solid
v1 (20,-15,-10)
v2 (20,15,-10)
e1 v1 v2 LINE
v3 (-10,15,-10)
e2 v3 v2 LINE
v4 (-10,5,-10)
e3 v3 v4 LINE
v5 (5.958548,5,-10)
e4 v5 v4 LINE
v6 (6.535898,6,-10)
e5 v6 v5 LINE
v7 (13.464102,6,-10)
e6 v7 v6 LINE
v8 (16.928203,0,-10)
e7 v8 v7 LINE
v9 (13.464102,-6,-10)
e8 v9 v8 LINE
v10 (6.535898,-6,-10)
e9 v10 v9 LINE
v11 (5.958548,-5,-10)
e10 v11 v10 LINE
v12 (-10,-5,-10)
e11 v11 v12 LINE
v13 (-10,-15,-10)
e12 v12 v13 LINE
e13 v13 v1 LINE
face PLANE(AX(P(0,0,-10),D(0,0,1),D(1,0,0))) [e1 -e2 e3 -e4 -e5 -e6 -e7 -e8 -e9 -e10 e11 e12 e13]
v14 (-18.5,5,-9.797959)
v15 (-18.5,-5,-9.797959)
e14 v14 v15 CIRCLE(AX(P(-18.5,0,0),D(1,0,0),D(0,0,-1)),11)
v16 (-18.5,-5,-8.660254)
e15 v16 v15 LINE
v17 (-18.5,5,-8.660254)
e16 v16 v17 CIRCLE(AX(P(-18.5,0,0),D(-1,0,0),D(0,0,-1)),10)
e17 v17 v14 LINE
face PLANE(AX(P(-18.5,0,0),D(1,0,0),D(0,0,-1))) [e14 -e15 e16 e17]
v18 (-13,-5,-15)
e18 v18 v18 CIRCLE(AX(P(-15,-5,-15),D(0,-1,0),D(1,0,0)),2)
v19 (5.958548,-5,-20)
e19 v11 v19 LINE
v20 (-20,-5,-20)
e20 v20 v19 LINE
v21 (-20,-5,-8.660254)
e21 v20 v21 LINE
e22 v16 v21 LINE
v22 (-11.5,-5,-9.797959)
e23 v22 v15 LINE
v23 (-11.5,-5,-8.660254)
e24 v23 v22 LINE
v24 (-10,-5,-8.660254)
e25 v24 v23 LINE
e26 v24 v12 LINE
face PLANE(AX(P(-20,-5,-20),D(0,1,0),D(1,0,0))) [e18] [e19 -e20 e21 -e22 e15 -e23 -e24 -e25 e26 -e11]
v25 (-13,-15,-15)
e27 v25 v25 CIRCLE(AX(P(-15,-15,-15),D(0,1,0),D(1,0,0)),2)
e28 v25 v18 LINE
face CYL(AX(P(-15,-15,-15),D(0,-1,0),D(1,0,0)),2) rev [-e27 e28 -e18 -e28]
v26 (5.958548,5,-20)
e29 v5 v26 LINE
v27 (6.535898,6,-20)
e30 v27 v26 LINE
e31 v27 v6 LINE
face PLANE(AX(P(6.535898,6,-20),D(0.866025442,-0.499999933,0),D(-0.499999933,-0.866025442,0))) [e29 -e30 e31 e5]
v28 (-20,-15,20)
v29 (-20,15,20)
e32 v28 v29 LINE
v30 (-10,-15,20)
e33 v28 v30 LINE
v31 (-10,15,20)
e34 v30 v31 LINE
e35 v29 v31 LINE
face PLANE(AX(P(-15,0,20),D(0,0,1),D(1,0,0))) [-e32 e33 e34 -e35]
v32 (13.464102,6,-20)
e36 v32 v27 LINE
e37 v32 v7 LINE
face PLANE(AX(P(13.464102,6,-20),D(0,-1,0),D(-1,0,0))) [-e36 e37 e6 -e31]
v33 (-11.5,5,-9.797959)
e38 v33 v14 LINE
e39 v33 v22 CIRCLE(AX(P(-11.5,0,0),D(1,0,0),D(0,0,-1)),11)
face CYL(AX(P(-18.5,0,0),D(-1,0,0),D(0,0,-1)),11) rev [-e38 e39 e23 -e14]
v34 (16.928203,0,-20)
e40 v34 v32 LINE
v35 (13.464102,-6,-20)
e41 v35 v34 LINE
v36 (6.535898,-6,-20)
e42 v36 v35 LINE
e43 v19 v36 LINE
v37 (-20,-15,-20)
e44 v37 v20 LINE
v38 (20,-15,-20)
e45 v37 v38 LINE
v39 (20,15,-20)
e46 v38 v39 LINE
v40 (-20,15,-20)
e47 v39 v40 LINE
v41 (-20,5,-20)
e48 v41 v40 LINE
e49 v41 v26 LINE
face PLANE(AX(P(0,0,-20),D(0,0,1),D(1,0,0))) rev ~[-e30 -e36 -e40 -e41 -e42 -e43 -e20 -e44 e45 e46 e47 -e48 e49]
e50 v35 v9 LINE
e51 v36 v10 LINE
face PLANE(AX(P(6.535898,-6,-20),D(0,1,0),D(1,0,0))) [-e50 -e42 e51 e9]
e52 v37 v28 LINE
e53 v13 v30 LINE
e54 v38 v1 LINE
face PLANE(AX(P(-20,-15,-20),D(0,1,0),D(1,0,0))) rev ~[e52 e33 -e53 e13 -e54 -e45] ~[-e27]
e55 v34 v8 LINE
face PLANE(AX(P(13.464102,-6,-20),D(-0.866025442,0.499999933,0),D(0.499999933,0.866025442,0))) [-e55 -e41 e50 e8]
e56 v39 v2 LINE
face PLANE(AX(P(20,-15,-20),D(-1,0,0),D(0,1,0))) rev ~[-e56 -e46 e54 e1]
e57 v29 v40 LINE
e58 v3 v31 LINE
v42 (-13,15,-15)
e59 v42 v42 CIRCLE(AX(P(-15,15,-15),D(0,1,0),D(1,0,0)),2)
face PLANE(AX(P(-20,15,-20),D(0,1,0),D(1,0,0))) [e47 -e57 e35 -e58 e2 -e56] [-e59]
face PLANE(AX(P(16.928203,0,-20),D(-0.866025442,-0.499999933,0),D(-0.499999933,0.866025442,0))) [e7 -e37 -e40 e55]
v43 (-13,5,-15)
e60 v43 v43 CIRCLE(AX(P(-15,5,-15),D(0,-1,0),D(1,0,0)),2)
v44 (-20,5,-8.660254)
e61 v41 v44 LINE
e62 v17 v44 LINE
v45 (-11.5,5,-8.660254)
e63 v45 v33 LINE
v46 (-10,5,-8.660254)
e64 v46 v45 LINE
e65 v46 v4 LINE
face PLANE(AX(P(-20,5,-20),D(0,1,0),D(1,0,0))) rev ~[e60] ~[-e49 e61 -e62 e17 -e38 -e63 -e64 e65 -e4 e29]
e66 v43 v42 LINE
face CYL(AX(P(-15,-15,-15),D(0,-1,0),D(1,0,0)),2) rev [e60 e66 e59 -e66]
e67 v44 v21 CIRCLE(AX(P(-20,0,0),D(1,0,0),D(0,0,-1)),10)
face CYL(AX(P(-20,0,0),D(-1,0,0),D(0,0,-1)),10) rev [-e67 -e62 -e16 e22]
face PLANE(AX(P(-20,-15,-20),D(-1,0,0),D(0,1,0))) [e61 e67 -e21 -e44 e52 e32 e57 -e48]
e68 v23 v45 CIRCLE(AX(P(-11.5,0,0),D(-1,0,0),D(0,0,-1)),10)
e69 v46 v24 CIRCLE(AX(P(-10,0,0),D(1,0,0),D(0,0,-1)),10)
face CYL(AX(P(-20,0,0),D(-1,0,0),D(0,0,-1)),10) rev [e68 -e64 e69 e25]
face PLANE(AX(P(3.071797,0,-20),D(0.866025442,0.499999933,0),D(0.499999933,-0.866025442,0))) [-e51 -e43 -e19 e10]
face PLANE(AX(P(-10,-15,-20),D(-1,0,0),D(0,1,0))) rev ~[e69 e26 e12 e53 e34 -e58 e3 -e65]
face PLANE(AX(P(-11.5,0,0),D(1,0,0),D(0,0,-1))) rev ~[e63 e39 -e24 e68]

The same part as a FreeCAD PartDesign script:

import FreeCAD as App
import Part
import Sketcher
Q = App.Units.Quantity


def add_polygon(sketch, points):
    """Adds a closed chain of lines whose ends are joined by coincident constraints."""
    first, n = sketch.GeometryCount, len(points)
    for a, b in zip(points, points[1:] + points[:1]):
        sketch.addGeometry(Part.LineSegment(App.Vector(*a, 0), App.Vector(*b, 0)), False)
    for i in range(n):
        sketch.addConstraint(Sketcher.Constraint("Coincident", first + i, 2, first + (i + 1) % n, 1))

doc = App.newDocument("Part")
body = doc.addObject("PartDesign::Body", "Body")

sketch1 = body.newObject("Sketcher::SketchObject", "Sketch")
sketch1.AttachmentSupport = (doc.getObject("XY_Plane"), [""])
sketch1.MapMode = "FlatFace"
sketch1.addGeometry(Part.Circle(App.Vector(0, 0, 0), App.Vector(0, 0, 1), 2), False)
sketch1.addConstraint([
    Sketcher.Constraint("Coincident", 0, 3, -1, 1),
    Sketcher.Constraint("Diameter", 0, 4.0),
])
pad1 = body.newObject("PartDesign::Pad", "Pad")
pad1.Profile = sketch1
pad1.Length = 30
body2 = doc.addObject("PartDesign::Body", "Body001")
doc.recompute()

body.Placement = App.Placement(App.Vector(0, 0, 0), App.Rotation(App.Vector(1, 0, 0), 270))
boolean = body2.newObject("PartDesign::Boolean", "Boolean")
boolean.Type = "Fuse"
boolean.addObjects([body])
body3 = doc.addObject("PartDesign::Body", "Body002")
doc.recompute()

body2.Placement = App.Placement(App.Vector(-15, -15, -15), App.Rotation(App.Vector(0, 0, 1), 0))
boolean2 = body3.newObject("PartDesign::Boolean", "Boolean001")
boolean2.Type = "Fuse"
boolean2.addObjects([body2])
body4 = doc.addObject("PartDesign::Body", "Body003")

sketch2 = body4.newObject("Sketcher::SketchObject", "Sketch001")
sketch2.AttachmentSupport = (doc.getObject("XY_Plane003"), [""])
sketch2.MapMode = "FlatFace"
sketch2.addGeometry(Part.Circle(App.Vector(0, 0, 0), App.Vector(0, 0, 1), 11), False)
sketch2.addConstraint([
    Sketcher.Constraint("Coincident", 0, 3, -1, 1),
    Sketcher.Constraint("Diameter", 0, 22.0),
])
pad2 = body4.newObject("PartDesign::Pad", "Pad001")
pad2.Profile = sketch2
pad2.Length = 7
body5 = doc.addObject("PartDesign::Body", "Body004")
doc.recompute()

body4.Placement = App.Placement(App.Vector(0, 0, 0), App.Rotation(App.Vector(0, 1, 0), 90))
boolean3 = body5.newObject("PartDesign::Boolean", "Boolean002")
boolean3.Type = "Fuse"
boolean3.addObjects([body4])
body6 = doc.addObject("PartDesign::Body", "Body005")
doc.recompute()

body5.Placement = App.Placement(App.Vector(-18.5, 0, 0), App.Rotation(App.Vector(0, 0, 1), 0))
boolean4 = body6.newObject("PartDesign::Boolean", "Boolean003")
boolean4.Type = "Fuse"
boolean4.addObjects([body5])
body7 = doc.addObject("PartDesign::Body", "Body006")

sketch3 = body7.newObject("Sketcher::SketchObject", "Sketch002")
sketch3.AttachmentSupport = (doc.getObject("XY_Plane006"), [""])
sketch3.MapMode = "FlatFace"
sketch3.addGeometry(Part.Circle(App.Vector(0, 0, 0), App.Vector(0, 0, 1), 10), False)
sketch3.addConstraint([
    Sketcher.Constraint("Coincident", 0, 3, -1, 1),
    Sketcher.Constraint("Diameter", 0, 20.0),
])
pad3 = body7.newObject("PartDesign::Pad", "Pad002")
pad3.Profile = sketch3
pad3.Length = 10
body8 = doc.addObject("PartDesign::Body", "Body007")
doc.recompute()

body7.Placement = App.Placement(App.Vector(0, 0, 0), App.Rotation(App.Vector(0, 1, 0), 90))
boolean5 = body8.newObject("PartDesign::Boolean", "Boolean004")
boolean5.Type = "Fuse"
boolean5.addObjects([body7])
body9 = doc.addObject("PartDesign::Body", "Body008")
doc.recompute()

body8.Placement = App.Placement(App.Vector(-20, 0, 0), App.Rotation(App.Vector(0, 0, 1), 0))
boolean6 = body9.newObject("PartDesign::Boolean", "Boolean005")
boolean6.Type = "Fuse"
boolean6.addObjects([body8])
body10 = doc.addObject("PartDesign::Body", "Body009")

sketch4 = body10.newObject("Sketcher::SketchObject", "Sketch003")
sketch4.AttachmentSupport = (doc.getObject("XY_Plane009"), [""])
sketch4.MapMode = "FlatFace"
add_polygon(sketch4, [(6.928203, 0), (3.464102, 6), (-3.464102, 6), (-6.928203, 0), (-3.464102, -6), (3.464102, -6)])
sketch4.addConstraint([
    Sketcher.Constraint("Horizontal", 1),
    Sketcher.Constraint("Horizontal", 4),
    Sketcher.Constraint("Symmetric", 0, 2, 3, 2, -1, 1),
    Sketcher.Constraint("Symmetric", 2, 2, 5, 2, -1, 1),
    Sketcher.Constraint("PointOnObject", 2, 2, -1),
    Sketcher.Constraint("Parallel", 2, 5),
    Sketcher.Constraint("Vertical", 1, 2, 3, 2),
    Sketcher.Constraint("Angle", 0, Q("119.999996 deg")),
    Sketcher.Constraint("DistanceY", -1, 1, 0, 2, 6.0),
    Sketcher.Constraint("DistanceX", -1, 1, 0, 2, 3.464102),
])
pad4 = body10.newObject("PartDesign::Pad", "Pad003")
pad4.Profile = sketch4
pad4.Length = 10
body11 = doc.addObject("PartDesign::Body", "Body010")
doc.recompute()

body10.Placement = App.Placement(App.Vector(10, 0, -20), App.Rotation(App.Vector(0, 0, 1), 0))
boolean7 = body11.newObject("PartDesign::Boolean", "Boolean006")
boolean7.Type = "Fuse"
boolean7.addObjects([body10])
body12 = doc.addObject("PartDesign::Body", "Body011")

sketch5 = body12.newObject("Sketcher::SketchObject", "Sketch004")
sketch5.AttachmentSupport = (doc.getObject("XY_Plane011"), [""])
sketch5.MapMode = "FlatFace"
sketch5.AttachmentOffset = App.Placement(App.Vector(0, 0, -20), App.Rotation())
add_polygon(sketch5, [(-20, 5), (-20, -5), (10, -5), (10, 5)])
sketch5.addConstraint([
    Sketcher.Constraint("Vertical", 0),
    Sketcher.Constraint("Horizontal", 1),
    Sketcher.Constraint("Vertical", 2),
    Sketcher.Constraint("Horizontal", 3),
    Sketcher.Constraint("DistanceX", 1, 1, 1, 2, 30.0),
    Sketcher.Constraint("DistanceY", 0, 2, 0, 1, 10.0),
    Sketcher.Constraint("DistanceX", 0, 2, -1, 1, 20.0),
    Sketcher.Constraint("DistanceY", 0, 2, -1, 1, 5.0),
])
pad5 = body12.newObject("PartDesign::Pad", "Pad004")
pad5.Profile = sketch5
pad5.Length = 15
doc.recompute()

boolean8 = body12.newObject("PartDesign::Boolean", "Boolean007")
boolean8.Type = "Fuse"
boolean8.addObjects([body3])
doc.recompute()

boolean9 = body12.newObject("PartDesign::Boolean", "Boolean008")
boolean9.Type = "Fuse"
boolean9.addObjects([body6])
doc.recompute()

boolean10 = body12.newObject("PartDesign::Boolean", "Boolean009")
boolean10.Type = "Fuse"
boolean10.addObjects([body9])
doc.recompute()

boolean11 = body12.newObject("PartDesign::Boolean", "Boolean010")
boolean11.Type = "Fuse"
boolean11.addObjects([body11])
body13 = doc.addObject("PartDesign::Body", "Body012")

sketch6 = body13.newObject("Sketcher::SketchObject", "Sketch005")
sketch6.AttachmentSupport = (doc.getObject("XY_Plane012"), [""])
sketch6.MapMode = "FlatFace"
sketch6.AttachmentOffset = App.Placement(App.Vector(0, 0, -20), App.Rotation())
add_polygon(sketch6, [(-20, 15), (-20, -15), (-10, -15), (-10, 15)])
sketch6.addConstraint([
    Sketcher.Constraint("Vertical", 0),
    Sketcher.Constraint("Horizontal", 1),
    Sketcher.Constraint("Vertical", 2),
    Sketcher.Constraint("Horizontal", 3),
    Sketcher.Constraint("DistanceX", 1, 1, 1, 2, 10.0),
    Sketcher.Constraint("DistanceY", 0, 2, 0, 1, 30.0),
    Sketcher.Constraint("DistanceX", 0, 2, -1, 1, 20.0),
    Sketcher.Constraint("DistanceY", 0, 2, -1, 1, 15.0),
])
pad6 = body13.newObject("PartDesign::Pad", "Pad005")
pad6.Profile = sketch6
pad6.Length = 40
body14 = doc.addObject("PartDesign::Body", "Body013")

sketch7 = body14.newObject("Sketcher::SketchObject", "Sketch006")
sketch7.AttachmentSupport = (doc.getObject("XY_Plane013"), [""])
sketch7.MapMode = "FlatFace"
sketch7.AttachmentOffset = App.Placement(App.Vector(0, 0, -20), App.Rotation())
add_polygon(sketch7, [(-20, 15), (-20, -15), (20, -15), (20, 15)])
sketch7.addConstraint([
    Sketcher.Constraint("Vertical", 0),
    Sketcher.Constraint("Horizontal", 1),
    Sketcher.Constraint("Vertical", 2),
    Sketcher.Constraint("Horizontal", 3),
    Sketcher.Constraint("Symmetric", 0, 2, 2, 2, -1, 1),
    Sketcher.Constraint("DistanceX", 1, 1, 1, 2, 40.0),
    Sketcher.Constraint("DistanceY", 0, 2, 0, 1, 30.0),
])
pad7 = body14.newObject("PartDesign::Pad", "Pad006")
pad7.Profile = sketch7
pad7.Length = 10
doc.recompute()

boolean12 = body14.newObject("PartDesign::Boolean", "Boolean011")
boolean12.Type = "Fuse"
boolean12.addObjects([body13])
doc.recompute()

boolean13 = body14.newObject("PartDesign::Boolean", "Boolean012")
boolean13.Type = "Cut"
boolean13.addObjects([body12])

doc.recompute()
